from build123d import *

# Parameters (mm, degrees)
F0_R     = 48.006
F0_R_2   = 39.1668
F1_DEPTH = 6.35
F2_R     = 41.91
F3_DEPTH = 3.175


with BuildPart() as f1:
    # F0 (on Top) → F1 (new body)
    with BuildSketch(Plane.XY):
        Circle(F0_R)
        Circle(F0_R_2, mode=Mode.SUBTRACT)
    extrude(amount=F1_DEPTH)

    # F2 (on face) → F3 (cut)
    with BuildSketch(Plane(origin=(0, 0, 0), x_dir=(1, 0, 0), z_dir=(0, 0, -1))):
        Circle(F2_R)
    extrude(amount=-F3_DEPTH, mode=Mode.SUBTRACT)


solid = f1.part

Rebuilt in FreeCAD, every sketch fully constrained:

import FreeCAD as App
import Part
import Sketcher
Q = App.Units.Quantity

doc = App.newDocument("Part")
body = doc.addObject("PartDesign::Body", "Body")

# Sketch on XY plane
sketch1 = body.newObject("Sketcher::SketchObject", "Sketch")
sketch1.AttachmentSupport = (doc.getObject("XY_Plane"), [""])
sketch1.MapMode = "FlatFace"
sketch1.addGeometry([
    Part.Circle(App.Vector(0, 0, 0), App.Vector(0, 0, 1), 48),
    Part.Circle(App.Vector(0, 0, 0), App.Vector(0, 0, 1), 39),
], False)
sketch1.addConstraint([
    Sketcher.Constraint("Coincident", 0, 3, -1, 1),
    Sketcher.Constraint("Coincident", 1, 3, -1, 1),
    Sketcher.Constraint("Diameter", 0, Q("3.78 in")),
    Sketcher.Constraint("Diameter", 1, Q("3.084 in")),
])
pad1 = body.newObject("PartDesign::Pad", "Pad")
pad1.Profile = sketch1
pad1.Length = Q("0.25 in")

# Sketch on XY plane
sketch2 = body.newObject("Sketcher::SketchObject", "Sketch001")
sketch2.AttachmentSupport = (doc.getObject("XY_Plane"), [""])
sketch2.MapMode = "FlatFace"
sketch2.addGeometry(Part.Circle(App.Vector(0, 0, 0), App.Vector(0, 0, 1), 42), False)
sketch2.addConstraint([
    Sketcher.Constraint("Coincident", 0, 3, -1, 1),
    Sketcher.Constraint("Diameter", 0, Q("3.3 in")),
])
pocket1 = body.newObject("PartDesign::Pocket", "Pocket")
pocket1.Profile = sketch2
pocket1.Length = Q("0.125 in")
pocket1.Reversed = True

doc.recompute()
